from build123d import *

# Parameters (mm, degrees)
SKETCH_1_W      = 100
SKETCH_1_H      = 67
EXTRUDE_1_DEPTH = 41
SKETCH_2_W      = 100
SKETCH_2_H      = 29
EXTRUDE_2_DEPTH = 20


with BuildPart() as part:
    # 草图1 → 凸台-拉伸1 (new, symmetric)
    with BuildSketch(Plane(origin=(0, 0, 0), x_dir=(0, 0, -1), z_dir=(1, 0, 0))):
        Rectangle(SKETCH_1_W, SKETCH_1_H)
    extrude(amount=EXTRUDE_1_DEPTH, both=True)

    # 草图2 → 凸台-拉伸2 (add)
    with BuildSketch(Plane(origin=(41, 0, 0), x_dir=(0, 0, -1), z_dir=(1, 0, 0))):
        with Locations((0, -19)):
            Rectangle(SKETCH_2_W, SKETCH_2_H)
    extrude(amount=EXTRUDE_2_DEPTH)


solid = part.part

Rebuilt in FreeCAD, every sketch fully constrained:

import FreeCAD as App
import Part
import Sketcher
from FreeCAD import Vector
Q = App.Units.Quantity


def add_polygon(sketch, points):
    """Adds a closed chain of lines whose ends are joined by coincident constraints."""
    first, n = sketch.GeometryCount, len(points)
    for a, b in zip(points, points[1:] + points[:1]):
        sketch.addGeometry(Part.LineSegment(App.Vector(*a, 0), App.Vector(*b, 0)), False)
    for i in range(n):
        sketch.addConstraint(Sketcher.Constraint("Coincident", first + i, 2, first + (i + 1) % n, 1))

doc = App.newDocument("Part")
body = doc.addObject("PartDesign::Body", "Body")

sketch1 = doc.addObject("Sketcher::SketchObject", "Sketch")
body.addObject(sketch1)
sketch1.AttachmentSupport = (doc.YZ_Plane, [""])
sketch1.MapMode = "FlatFace"
add_polygon(sketch1, [(34, 50), (-34, 50), (-34, -50), (34, -50)])
sketch1.addConstraint(Sketcher.Constraint("Horizontal", 0))
sketch1.addConstraint(Sketcher.Constraint("Vertical", 1))
sketch1.addConstraint(Sketcher.Constraint("Horizontal", 2))
sketch1.addConstraint(Sketcher.Constraint("Vertical", 3))
sketch1.addConstraint(Sketcher.Constraint("Symmetric", 0, 2, 2, 2, -1, 1))
sketch1.addConstraint(Sketcher.Constraint("DistanceX", 0, 2, 0, 1, Q("67 mm")))
sketch1.addConstraint(Sketcher.Constraint("DistanceY", 1, 2, 1, 1, Q("100 mm")))
pad1 = doc.addObject("PartDesign::Pad", "Pad")
body.addObject(pad1)
pad1.Profile = sketch1
pad1.Length = 82
pad1.Midplane = True

sketch2 = doc.addObject("Sketcher::SketchObject", "Sketch001")
body.addObject(sketch2)
sketch2.AttachmentSupport = (doc.YZ_Plane, [""])
sketch2.MapMode = "FlatFace"
sketch2.AttachmentOffset = App.Placement(Vector(0, 0, 41), App.Rotation())
add_polygon(sketch2, [(-4, 50), (-34, 50), (-34, -50), (-4, -50)])
sketch2.addConstraint(Sketcher.Constraint("Horizontal", 0))
sketch2.addConstraint(Sketcher.Constraint("Vertical", 1))
sketch2.addConstraint(Sketcher.Constraint("Horizontal", 2))
sketch2.addConstraint(Sketcher.Constraint("Vertical", 3))
sketch2.addConstraint(Sketcher.Constraint("DistanceX", 0, 2, 0, 1, Q("29 mm")))
sketch2.addConstraint(Sketcher.Constraint("DistanceY", 1, 2, 1, 1, Q("100 mm")))
sketch2.addConstraint(Sketcher.Constraint("DistanceY", -1, 1, 0, 2, Q("50 mm")))
sketch2.addConstraint(Sketcher.Constraint("DistanceX", 0, 2, -1, 1, Q("33.5 mm")))
pad2 = doc.addObject("PartDesign::Pad", "Pad001")
body.addObject(pad2)
pad2.Profile = sketch2
pad2.Length = 20

doc.recompute()
